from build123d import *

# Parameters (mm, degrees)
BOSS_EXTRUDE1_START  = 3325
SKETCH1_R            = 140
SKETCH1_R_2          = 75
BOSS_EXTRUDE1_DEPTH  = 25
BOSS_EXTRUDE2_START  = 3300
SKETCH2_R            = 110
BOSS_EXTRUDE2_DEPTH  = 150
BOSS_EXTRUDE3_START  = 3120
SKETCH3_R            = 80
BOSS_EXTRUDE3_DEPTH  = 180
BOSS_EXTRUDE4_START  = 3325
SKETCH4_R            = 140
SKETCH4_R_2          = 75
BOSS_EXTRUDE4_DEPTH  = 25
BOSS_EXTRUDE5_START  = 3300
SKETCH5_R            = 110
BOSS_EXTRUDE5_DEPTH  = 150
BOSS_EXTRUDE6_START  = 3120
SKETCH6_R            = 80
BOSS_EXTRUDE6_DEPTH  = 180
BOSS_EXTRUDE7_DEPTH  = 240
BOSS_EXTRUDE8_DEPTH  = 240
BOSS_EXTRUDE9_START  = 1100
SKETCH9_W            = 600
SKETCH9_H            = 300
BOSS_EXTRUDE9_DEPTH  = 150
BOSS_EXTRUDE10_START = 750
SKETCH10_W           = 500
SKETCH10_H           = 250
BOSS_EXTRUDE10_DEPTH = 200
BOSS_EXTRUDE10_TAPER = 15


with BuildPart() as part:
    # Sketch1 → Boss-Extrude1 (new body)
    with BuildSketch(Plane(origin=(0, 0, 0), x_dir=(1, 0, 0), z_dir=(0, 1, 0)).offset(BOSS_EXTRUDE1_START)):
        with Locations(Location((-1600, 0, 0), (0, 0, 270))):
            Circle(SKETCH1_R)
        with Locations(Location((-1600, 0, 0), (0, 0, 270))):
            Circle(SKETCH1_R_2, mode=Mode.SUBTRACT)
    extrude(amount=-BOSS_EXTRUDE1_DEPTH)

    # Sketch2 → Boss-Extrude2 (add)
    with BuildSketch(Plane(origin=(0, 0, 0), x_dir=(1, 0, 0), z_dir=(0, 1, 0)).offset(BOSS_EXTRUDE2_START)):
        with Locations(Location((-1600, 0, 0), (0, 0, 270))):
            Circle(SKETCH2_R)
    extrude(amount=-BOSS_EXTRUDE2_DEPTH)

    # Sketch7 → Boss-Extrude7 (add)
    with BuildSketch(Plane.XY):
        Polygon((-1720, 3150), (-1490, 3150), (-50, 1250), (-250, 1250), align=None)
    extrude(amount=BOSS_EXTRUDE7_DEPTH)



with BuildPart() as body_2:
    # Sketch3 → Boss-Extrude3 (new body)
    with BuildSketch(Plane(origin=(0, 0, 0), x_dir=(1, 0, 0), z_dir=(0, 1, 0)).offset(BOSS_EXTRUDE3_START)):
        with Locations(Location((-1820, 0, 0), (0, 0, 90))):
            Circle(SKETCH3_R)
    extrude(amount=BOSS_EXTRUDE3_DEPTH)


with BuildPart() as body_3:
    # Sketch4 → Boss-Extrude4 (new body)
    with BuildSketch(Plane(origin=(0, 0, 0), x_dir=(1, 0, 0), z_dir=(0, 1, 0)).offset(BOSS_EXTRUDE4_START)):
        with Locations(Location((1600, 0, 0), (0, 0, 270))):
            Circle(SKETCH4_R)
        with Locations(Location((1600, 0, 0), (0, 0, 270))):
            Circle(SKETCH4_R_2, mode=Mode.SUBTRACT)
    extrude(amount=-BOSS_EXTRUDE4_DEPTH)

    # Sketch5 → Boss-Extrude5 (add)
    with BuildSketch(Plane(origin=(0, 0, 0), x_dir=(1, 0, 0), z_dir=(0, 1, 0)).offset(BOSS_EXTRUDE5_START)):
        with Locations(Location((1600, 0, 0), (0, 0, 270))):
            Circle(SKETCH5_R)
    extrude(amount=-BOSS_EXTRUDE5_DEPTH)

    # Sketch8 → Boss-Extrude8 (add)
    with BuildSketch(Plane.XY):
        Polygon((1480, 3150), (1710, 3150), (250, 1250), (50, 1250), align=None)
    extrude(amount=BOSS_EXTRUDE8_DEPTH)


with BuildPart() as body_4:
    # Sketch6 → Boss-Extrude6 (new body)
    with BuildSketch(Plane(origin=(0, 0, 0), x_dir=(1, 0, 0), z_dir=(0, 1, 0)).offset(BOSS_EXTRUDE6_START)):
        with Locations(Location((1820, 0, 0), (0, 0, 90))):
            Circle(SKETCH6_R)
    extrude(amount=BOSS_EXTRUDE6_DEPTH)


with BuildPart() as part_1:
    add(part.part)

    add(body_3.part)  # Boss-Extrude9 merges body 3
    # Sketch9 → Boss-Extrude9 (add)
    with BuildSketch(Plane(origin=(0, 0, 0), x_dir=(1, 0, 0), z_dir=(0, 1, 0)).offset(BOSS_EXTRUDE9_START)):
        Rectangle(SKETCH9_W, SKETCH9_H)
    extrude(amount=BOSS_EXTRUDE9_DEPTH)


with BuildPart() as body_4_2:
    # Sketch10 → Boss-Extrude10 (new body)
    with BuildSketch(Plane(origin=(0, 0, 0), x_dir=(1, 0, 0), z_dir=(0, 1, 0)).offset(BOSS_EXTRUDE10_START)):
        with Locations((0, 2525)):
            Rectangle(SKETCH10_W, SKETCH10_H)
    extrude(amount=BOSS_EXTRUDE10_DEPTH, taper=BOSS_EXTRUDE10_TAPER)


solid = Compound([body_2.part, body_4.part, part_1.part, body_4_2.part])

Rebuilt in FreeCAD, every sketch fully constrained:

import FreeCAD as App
import Part
import Sketcher

V = App.Vector


def add_polygon(sketch, points):
    """Adds a closed chain of lines whose ends are joined by coincident constraints."""
    first, n = sketch.GeometryCount, len(points)
    for a, b in zip(points, points[1:] + points[:1]):
        sketch.addGeometry(Part.LineSegment(App.Vector(*a, 0), App.Vector(*b, 0)), False)
    for i in range(n):
        sketch.addConstraint(Sketcher.Constraint("Coincident", first + i, 2, first + (i + 1) % n, 1))

doc = App.newDocument("Part")
params = doc.addObject("Spreadsheet::Sheet", "Params")
for row, (alias, value) in enumerate([
    ("sketch1_diameter", "280 mm"),
    ("sketch1_diameter2", "150 mm"),
    ("pad1_length", "25 mm"),
    ("sketch2_diameter", "220 mm"),
    ("pad2_length", "150 mm"),
    ("sketch3_width", "230 mm"),
    ("sketch3_width2", "200 mm"),
    ("pad3_length", "240 mm"),
    ("sketch4_diameter", "160 mm"),
    ("pad4_length", "180 mm"),
    ("sketch5_diameter", "280 mm"),
    ("sketch5_diameter2", "150 mm"),
    ("pad5_length", "25 mm"),
    ("sketch6_diameter", "220 mm"),
    ("pad6_length", "150 mm"),
    ("sketch7_width", "230 mm"),
    ("sketch7_width2", "200 mm"),
    ("pad7_length", "240 mm"),
    ("sketch8_diameter", "160 mm"),
    ("pad8_length", "180 mm"),
    ("sketch9_width", "600 mm"),
    ("sketch9_height", "300 mm"),
    ("pad9_length", "150 mm"),
    ("sketch10_width", "500 mm"),
    ("sketch10_height", "250 mm"),
    ("pad10_length", "200 mm"),
    ("pad10_taper", "-15 deg"),
], start=1):
    params.set(f"A{row}", alias)
    params.set(f"B{row}", "=" + value)
    params.setAlias(f"B{row}", alias)

body = doc.addObject("PartDesign::Body", "Body")

sketch1 = doc.addObject("Sketcher::SketchObject", "Sketch")
body.addObject(sketch1)
sketch1.AttachmentSupport = (doc.XZ_Plane, [""])
sketch1.MapMode = "FlatFace"
sketch1.AttachmentOffset = App.Placement(V(0, 0, -3325), App.Rotation())
sketch1.addGeometry(Part.Circle(V(-1600, 0, 0), V(0, 0, 1), 140), False)
sketch1.addGeometry(Part.Circle(V(-1600, 0, 0), V(0, 0, 1), 75), False)
sketch1.addConstraint(Sketcher.Constraint("Coincident", 1, 3, 0, 3))
sketch1.addConstraint(Sketcher.Constraint("PointOnObject", 0, 3, -1))
sketch1.addConstraint(Sketcher.Constraint("Diameter", 0, 280.0))
sketch1.addConstraint(Sketcher.Constraint("Diameter", 1, 150.0))
sketch1.addConstraint(Sketcher.Constraint("DistanceX", 0, 3, -1, 1, 1600.0))
sketch1.setExpression("Constraints[2]", "Params.sketch1_diameter")
sketch1.setExpression("Constraints[3]", "Params.sketch1_diameter2")
pad1 = doc.addObject("PartDesign::Pad", "Pad")
body.addObject(pad1)
pad1.Profile = sketch1
pad1.setExpression("Length", "Params.pad1_length")

sketch2 = doc.addObject("Sketcher::SketchObject", "Sketch001")
body.addObject(sketch2)
sketch2.AttachmentSupport = (doc.XZ_Plane, [""])
sketch2.MapMode = "FlatFace"
sketch2.AttachmentOffset = App.Placement(V(0, 0, -3300), App.Rotation())
sketch2.addGeometry(Part.Circle(V(-1600, 0, 0), V(0, 0, 1), 110), False)
sketch2.addConstraint(Sketcher.Constraint("PointOnObject", 0, 3, -1))
sketch2.addConstraint(Sketcher.Constraint("Diameter", 0, 220.0))
sketch2.addConstraint(Sketcher.Constraint("DistanceX", 0, 3, -1, 1, 1600.0))
sketch2.setExpression("Constraints[1]", "Params.sketch2_diameter")
pad2 = doc.addObject("PartDesign::Pad", "Pad001")
body.addObject(pad2)
pad2.Profile = sketch2
pad2.setExpression("Length", "Params.pad2_length")

sketch3 = doc.addObject("Sketcher::SketchObject", "Sketch002")
body.addObject(sketch3)
sketch3.AttachmentSupport = (doc.XY_Plane, [""])
sketch3.MapMode = "FlatFace"
add_polygon(sketch3, [(-1490, 3150), (-1720, 3150), (-250, 1250), (-50, 1250)])
sketch3.addConstraint(Sketcher.Constraint("Horizontal", 0))
sketch3.addConstraint(Sketcher.Constraint("Horizontal", 2))
sketch3.addConstraint(Sketcher.Constraint("DistanceX", 0, 2, 0, 1, 230.0))
sketch3.addConstraint(Sketcher.Constraint("DistanceX", 2, 1, 2, 2, 200.0))
sketch3.addConstraint(Sketcher.Constraint("DistanceX", 0, 2, -1, 1, 1720.0))
sketch3.addConstraint(Sketcher.Constraint("DistanceY", -1, 1, 0, 2, 3150.0))
sketch3.addConstraint(Sketcher.Constraint("DistanceX", 1, 2, -1, 1, 250.0))
sketch3.addConstraint(Sketcher.Constraint("DistanceY", -1, 1, 1, 2, 1250.0))
sketch3.setExpression("Constraints[6]", "Params.sketch3_width")
sketch3.setExpression("Constraints[7]", "Params.sketch3_width2")
pad3 = doc.addObject("PartDesign::Pad", "Pad002")
body.addObject(pad3)
pad3.Profile = sketch3
pad3.setExpression("Length", "Params.pad3_length")
body2 = doc.addObject("PartDesign::Body", "Body001")

sketch4 = doc.addObject("Sketcher::SketchObject", "Sketch003")
body2.addObject(sketch4)
sketch4.AttachmentSupport = (doc.getObject("XZ_Plane001"), [""])
sketch4.MapMode = "FlatFace"
sketch4.AttachmentOffset = App.Placement(V(0, 0, -3120), App.Rotation())
sketch4.addGeometry(Part.Circle(V(-1820, 0, 0), V(0, 0, 1), 80), False)
sketch4.addConstraint(Sketcher.Constraint("PointOnObject", 0, 3, -1))
sketch4.addConstraint(Sketcher.Constraint("Diameter", 0, 160.0))
sketch4.addConstraint(Sketcher.Constraint("DistanceX", 0, 3, -1, 1, 1820.0))
sketch4.setExpression("Constraints[1]", "Params.sketch4_diameter")
pad4 = doc.addObject("PartDesign::Pad", "Pad003")
body2.addObject(pad4)
pad4.Profile = sketch4
pad4.setExpression("Length", "Params.pad4_length")
pad4.Reversed = True
body3 = doc.addObject("PartDesign::Body", "Body002")

sketch5 = doc.addObject("Sketcher::SketchObject", "Sketch004")
body3.addObject(sketch5)
sketch5.AttachmentSupport = (doc.getObject("XZ_Plane002"), [""])
sketch5.MapMode = "FlatFace"
sketch5.AttachmentOffset = App.Placement(V(0, 0, -3325), App.Rotation())
sketch5.addGeometry(Part.Circle(V(1600, 0, 0), V(0, 0, 1), 140), False)
sketch5.addGeometry(Part.Circle(V(1600, 0, 0), V(0, 0, 1), 75), False)
sketch5.addConstraint(Sketcher.Constraint("Coincident", 1, 3, 0, 3))
sketch5.addConstraint(Sketcher.Constraint("PointOnObject", 0, 3, -1))
sketch5.addConstraint(Sketcher.Constraint("Diameter", 0, 280.0))
sketch5.addConstraint(Sketcher.Constraint("Diameter", 1, 150.0))
sketch5.addConstraint(Sketcher.Constraint("DistanceX", -1, 1, 0, 3, 1600.0))
sketch5.setExpression("Constraints[2]", "Params.sketch5_diameter")
sketch5.setExpression("Constraints[3]", "Params.sketch5_diameter2")
pad5 = doc.addObject("PartDesign::Pad", "Pad004")
body3.addObject(pad5)
pad5.Profile = sketch5
pad5.setExpression("Length", "Params.pad5_length")

sketch6 = doc.addObject("Sketcher::SketchObject", "Sketch005")
body3.addObject(sketch6)
sketch6.AttachmentSupport = (doc.getObject("XZ_Plane002"), [""])
sketch6.MapMode = "FlatFace"
sketch6.AttachmentOffset = App.Placement(V(0, 0, -3300), App.Rotation())
sketch6.addGeometry(Part.Circle(V(1600, 0, 0), V(0, 0, 1), 110), False)
sketch6.addConstraint(Sketcher.Constraint("PointOnObject", 0, 3, -1))
sketch6.addConstraint(Sketcher.Constraint("Diameter", 0, 220.0))
sketch6.addConstraint(Sketcher.Constraint("DistanceX", -1, 1, 0, 3, 1600.0))
sketch6.setExpression("Constraints[1]", "Params.sketch6_diameter")
pad6 = doc.addObject("PartDesign::Pad", "Pad005")
body3.addObject(pad6)
pad6.Profile = sketch6
pad6.setExpression("Length", "Params.pad6_length")

sketch7 = doc.addObject("Sketcher::SketchObject", "Sketch006")
body3.addObject(sketch7)
sketch7.AttachmentSupport = (doc.getObject("XY_Plane002"), [""])
sketch7.MapMode = "FlatFace"
add_polygon(sketch7, [(1710, 3150), (1480, 3150), (50, 1250), (250, 1250)])
sketch7.addConstraint(Sketcher.Constraint("Horizontal", 0))
sketch7.addConstraint(Sketcher.Constraint("Horizontal", 2))
sketch7.addConstraint(Sketcher.Constraint("DistanceX", 0, 2, 0, 1, 230.0))
sketch7.addConstraint(Sketcher.Constraint("DistanceX", 2, 1, 2, 2, 200.0))
sketch7.addConstraint(Sketcher.Constraint("DistanceX", -1, 1, 0, 2, 1480.0))
sketch7.addConstraint(Sketcher.Constraint("DistanceY", -1, 1, 0, 2, 3150.0))
sketch7.addConstraint(Sketcher.Constraint("DistanceX", -1, 1, 1, 2, 50.0))
sketch7.addConstraint(Sketcher.Constraint("DistanceY", -1, 1, 1, 2, 1250.0))
sketch7.setExpression("Constraints[6]", "Params.sketch7_width")
sketch7.setExpression("Constraints[7]", "Params.sketch7_width2")
pad7 = doc.addObject("PartDesign::Pad", "Pad006")
body3.addObject(pad7)
pad7.Profile = sketch7
pad7.setExpression("Length", "Params.pad7_length")
body4 = doc.addObject("PartDesign::Body", "Body003")

sketch8 = doc.addObject("Sketcher::SketchObject", "Sketch007")
body4.addObject(sketch8)
sketch8.AttachmentSupport = (doc.getObject("XZ_Plane003"), [""])
sketch8.MapMode = "FlatFace"
sketch8.AttachmentOffset = App.Placement(V(0, 0, -3120), App.Rotation())
sketch8.addGeometry(Part.Circle(V(1820, 0, 0), V(0, 0, 1), 80), False)
sketch8.addConstraint(Sketcher.Constraint("PointOnObject", 0, 3, -1))
sketch8.addConstraint(Sketcher.Constraint("Diameter", 0, 160.0))
sketch8.addConstraint(Sketcher.Constraint("DistanceX", -1, 1, 0, 3, 1820.0))
sketch8.setExpression("Constraints[1]", "Params.sketch8_diameter")
pad8 = doc.addObject("PartDesign::Pad", "Pad007")
body4.addObject(pad8)
pad8.Profile = sketch8
pad8.setExpression("Length", "Params.pad8_length")
pad8.Reversed = True
body.AllowCompound = True
doc.recompute()

boolean = doc.addObject("PartDesign::Boolean", "Boolean")
body.addObject(boolean)
boolean.Type = "Fuse"
boolean.addObjects([body3])

sketch9 = doc.addObject("Sketcher::SketchObject", "Sketch008")
body.addObject(sketch9)
sketch9.AttachmentSupport = (doc.XZ_Plane, [""])
sketch9.MapMode = "FlatFace"
sketch9.AttachmentOffset = App.Placement(V(0, 0, -1100), App.Rotation())
add_polygon(sketch9, [(-300, -150), (-300, 150), (300, 150), (300, -150)])
sketch9.addConstraint(Sketcher.Constraint("Vertical", 0))
sketch9.addConstraint(Sketcher.Constraint("Horizontal", 1))
sketch9.addConstraint(Sketcher.Constraint("Vertical", 2))
sketch9.addConstraint(Sketcher.Constraint("Horizontal", 3))
sketch9.addConstraint(Sketcher.Constraint("Symmetric", 0, 2, 2, 2, -1, 1))
sketch9.addConstraint(Sketcher.Constraint("DistanceX", 1, 1, 1, 2, 600.0))
sketch9.addConstraint(Sketcher.Constraint("DistanceY", 0, 1, 0, 2, 300.0))
sketch9.setExpression("Constraints[9]", "Params.sketch9_width")
sketch9.setExpression("Constraints[10]", "Params.sketch9_height")
pad9 = doc.addObject("PartDesign::Pad", "Pad008")
body.addObject(pad9)
pad9.Profile = sketch9
pad9.setExpression("Length", "Params.pad9_length")
pad9.Reversed = True
body5 = doc.addObject("PartDesign::Body", "Body004")

sketch10 = doc.addObject("Sketcher::SketchObject", "Sketch009")
body5.addObject(sketch10)
sketch10.AttachmentSupport = (doc.getObject("XZ_Plane004"), [""])
sketch10.MapMode = "FlatFace"
sketch10.AttachmentOffset = App.Placement(V(0, 0, -750), App.Rotation())
add_polygon(sketch10, [(-250, -2650), (-250, -2400), (250, -2400), (250, -2650)])
sketch10.addConstraint(Sketcher.Constraint("Vertical", 0))
sketch10.addConstraint(Sketcher.Constraint("Horizontal", 1))
sketch10.addConstraint(Sketcher.Constraint("Vertical", 2))
sketch10.addConstraint(Sketcher.Constraint("Horizontal", 3))
sketch10.addConstraint(Sketcher.Constraint("DistanceX", 1, 1, 1, 2, 500.0))
sketch10.addConstraint(Sketcher.Constraint("DistanceY", 0, 1, 0, 2, 250.0))
sketch10.addConstraint(Sketcher.Constraint("DistanceX", 0, 2, -1, 1, 250.0))
sketch10.addConstraint(Sketcher.Constraint("DistanceY", 0, 2, -1, 1, 2400.0))
sketch10.setExpression("Constraints[8]", "Params.sketch10_width")
sketch10.setExpression("Constraints[9]", "Params.sketch10_height")
pad10 = doc.addObject("PartDesign::Pad", "Pad009")
body5.addObject(pad10)
pad10.Profile = sketch10
pad10.setExpression("Length", "Params.pad10_length")
pad10.Reversed = True
pad10.setExpression("TaperAngle", "Params.pad10_taper")

doc.recompute()
